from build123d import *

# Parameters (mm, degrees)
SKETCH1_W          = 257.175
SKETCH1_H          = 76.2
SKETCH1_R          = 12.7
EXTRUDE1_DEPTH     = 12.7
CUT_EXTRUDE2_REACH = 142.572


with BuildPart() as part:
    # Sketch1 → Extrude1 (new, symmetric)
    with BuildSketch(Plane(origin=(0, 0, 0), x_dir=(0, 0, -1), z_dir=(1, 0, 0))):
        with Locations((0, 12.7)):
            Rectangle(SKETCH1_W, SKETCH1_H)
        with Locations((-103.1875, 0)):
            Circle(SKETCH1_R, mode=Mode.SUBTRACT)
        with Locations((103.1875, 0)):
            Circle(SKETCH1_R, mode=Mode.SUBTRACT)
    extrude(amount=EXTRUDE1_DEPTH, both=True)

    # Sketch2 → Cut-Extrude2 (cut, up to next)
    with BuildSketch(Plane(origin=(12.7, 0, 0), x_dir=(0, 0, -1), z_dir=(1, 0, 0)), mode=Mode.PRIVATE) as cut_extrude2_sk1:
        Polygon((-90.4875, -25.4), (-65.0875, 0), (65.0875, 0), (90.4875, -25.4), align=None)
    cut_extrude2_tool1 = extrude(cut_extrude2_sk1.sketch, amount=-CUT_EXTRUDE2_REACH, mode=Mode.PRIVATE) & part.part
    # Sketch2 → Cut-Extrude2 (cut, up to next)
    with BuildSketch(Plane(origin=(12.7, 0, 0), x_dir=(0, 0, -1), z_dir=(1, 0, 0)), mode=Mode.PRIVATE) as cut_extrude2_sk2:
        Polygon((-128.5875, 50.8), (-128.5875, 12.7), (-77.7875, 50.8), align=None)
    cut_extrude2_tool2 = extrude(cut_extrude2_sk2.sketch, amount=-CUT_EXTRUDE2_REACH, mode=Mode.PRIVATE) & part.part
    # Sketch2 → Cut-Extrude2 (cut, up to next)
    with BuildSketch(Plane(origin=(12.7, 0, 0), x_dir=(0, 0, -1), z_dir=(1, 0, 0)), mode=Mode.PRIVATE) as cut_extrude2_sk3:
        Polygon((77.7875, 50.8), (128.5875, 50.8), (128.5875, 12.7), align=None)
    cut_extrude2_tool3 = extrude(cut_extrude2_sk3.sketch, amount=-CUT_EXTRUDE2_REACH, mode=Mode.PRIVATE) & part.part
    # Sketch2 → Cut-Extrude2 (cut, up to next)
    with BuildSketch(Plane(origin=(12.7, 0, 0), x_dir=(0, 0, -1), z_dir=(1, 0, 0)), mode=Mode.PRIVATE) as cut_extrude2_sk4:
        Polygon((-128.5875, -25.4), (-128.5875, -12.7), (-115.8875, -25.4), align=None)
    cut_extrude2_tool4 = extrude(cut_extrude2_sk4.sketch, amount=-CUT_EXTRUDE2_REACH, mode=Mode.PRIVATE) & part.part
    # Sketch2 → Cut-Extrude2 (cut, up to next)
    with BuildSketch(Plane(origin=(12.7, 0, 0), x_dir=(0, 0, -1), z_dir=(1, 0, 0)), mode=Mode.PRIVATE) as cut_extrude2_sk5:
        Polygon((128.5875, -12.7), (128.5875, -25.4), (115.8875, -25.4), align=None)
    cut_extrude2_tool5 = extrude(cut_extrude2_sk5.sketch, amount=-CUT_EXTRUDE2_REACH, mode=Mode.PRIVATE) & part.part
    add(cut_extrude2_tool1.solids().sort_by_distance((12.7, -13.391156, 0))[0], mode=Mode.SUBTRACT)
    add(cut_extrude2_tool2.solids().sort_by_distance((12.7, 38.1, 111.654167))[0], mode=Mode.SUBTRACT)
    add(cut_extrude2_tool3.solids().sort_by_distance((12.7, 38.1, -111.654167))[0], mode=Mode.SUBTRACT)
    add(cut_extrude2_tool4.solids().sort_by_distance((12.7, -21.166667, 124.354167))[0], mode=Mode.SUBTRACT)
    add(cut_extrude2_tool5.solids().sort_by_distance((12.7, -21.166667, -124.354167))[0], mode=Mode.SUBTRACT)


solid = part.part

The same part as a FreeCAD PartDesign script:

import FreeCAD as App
import Part
import Sketcher

V = App.Vector
Q = App.Units.Quantity


def add_polygon(sketch, points):
    """Adds a closed chain of lines whose ends are joined by coincident constraints."""
    first, n = sketch.GeometryCount, len(points)
    for a, b in zip(points, points[1:] + points[:1]):
        sketch.addGeometry(Part.LineSegment(App.Vector(*a, 0), App.Vector(*b, 0)), False)
    for i in range(n):
        sketch.addConstraint(Sketcher.Constraint("Coincident", first + i, 2, first + (i + 1) % n, 1))

doc = App.newDocument("Part")
params = doc.addObject("Spreadsheet::Sheet", "Params")
for row, (alias, value) in enumerate([
    ("sketch1_diameter", "1 in"),
    ("sketch1_width", "3 in"),
    ("sketch1_height", "10.125 in"),
    ("pad1_length", "1 in"),
    ("sketch2_height", "7.125 in"),
    ("sketch3_height", "2 in"),
    ("sketch3_width", "1.5 in"),
    ("sketch4_height", "2 in"),
    ("sketch4_width", "1.5 in"),
    ("sketch5_width", "0.5 in"),
    ("sketch6_width", "0.5 in"),
], start=1):
    params.set(f"A{row}", alias)
    params.set(f"B{row}", "=" + value)
    params.setAlias(f"B{row}", alias)

body = doc.addObject("PartDesign::Body", "Body")

sketch1 = body.newObject("Sketcher::SketchObject", "Sketch")
sketch1.AttachmentSupport = (doc.getObject("YZ_Plane"), [""])
sketch1.MapMode = "FlatFace"
add_polygon(sketch1, [(51, 129), (-25, 129), (-25, -129), (51, -129)])
sketch1.addGeometry(Part.Circle(V(0, 103, 0), V(0, 0, 1), 13), False)
sketch1.addGeometry(Part.Circle(V(0, -103, 0), V(0, 0, 1), 13), False)
sketch1.addConstraint([
    Sketcher.Constraint("Horizontal", 0),
    Sketcher.Constraint("Vertical", 1),
    Sketcher.Constraint("Horizontal", 2),
    Sketcher.Constraint("Vertical", 3),
    Sketcher.Constraint("Equal", 4, 5),
    Sketcher.Constraint("Symmetric", 4, 3, 5, 3, -1, 1),
    Sketcher.Constraint("PointOnObject", 4, 3, -2),
    Sketcher.Constraint("Diameter", 4, Q("1 in")),
    Sketcher.Constraint("DistanceX", 0, 2, 0, 1, Q("3 in")),
    Sketcher.Constraint("DistanceX", 0, 2, -1, 1, Q("1 in")),
    Sketcher.Constraint("DistanceY", 4, 3, 0, 2, Q("1 in")),
    Sketcher.Constraint("DistanceY", 1, 2, 5, 3, Q("1 in")),
    Sketcher.Constraint("DistanceY", 1, 2, 1, 1, Q("10.125 in")),
])
sketch1.setExpression("Constraints[11]", "Params.sketch1_diameter")
sketch1.setExpression("Constraints[12]", "Params.sketch1_width")
sketch1.setExpression("Constraints[16]", "Params.sketch1_height")
pad1 = body.newObject("PartDesign::Pad", "Pad")
pad1.Profile = sketch1
pad1.setExpression("Length", "Params.pad1_length")
pad1.Midplane = True

sketch2 = body.newObject("Sketcher::SketchObject", "Sketch001")
sketch2.AttachmentSupport = (doc.getObject("YZ_Plane"), [""])
sketch2.MapMode = "FlatFace"
sketch2.AttachmentOffset = App.Placement(V(0, 0, 0.5 * 25.4), App.Rotation())
add_polygon(sketch2, [(0, 65), (-25, 90), (-25, -90), (0, -65)])
sketch2.addConstraint([
    Sketcher.Constraint("Vertical", 1),
    Sketcher.Constraint("Vertical", 3),
    Sketcher.Constraint("Symmetric", 2, 2, 3, 2, -1, 1),
    Sketcher.Constraint("Perpendicular", 0, 2),
    Sketcher.Constraint("Equal", 0, 2),
    Sketcher.Constraint("DistanceX", 0, 2, -1, 1, Q("1 in")),
    Sketcher.Constraint("DistanceY", 1, 2, 1, 1, Q("7.125 in")),
])
sketch2.setExpression("Constraints[10]", "Params.sketch2_height")
pocket1 = body.newObject("PartDesign::Pocket", "Pocket")
pocket1.Profile = sketch2
pocket1.Type = "UpToFirst"

sketch3 = body.newObject("Sketcher::SketchObject", "Sketch002")
sketch3.AttachmentSupport = (doc.getObject("YZ_Plane"), [""])
sketch3.MapMode = "FlatFace"
sketch3.AttachmentOffset = App.Placement(V(0, 0, 0.5 * 25.4), App.Rotation())
add_polygon(sketch3, [(51, 129), (13, 129), (51, 78)])
sketch3.addConstraint([
    Sketcher.Constraint("Horizontal", 0),
    Sketcher.Constraint("Vertical", 2),
    Sketcher.Constraint("DistanceY", 2, 1, 2, 2, Q("2 in")),
    Sketcher.Constraint("DistanceX", 0, 2, 0, 1, Q("1.5 in")),
    Sketcher.Constraint("DistanceX", -1, 1, 1, 2, Q("2 in")),
    Sketcher.Constraint("DistanceY", -1, 1, 0, 2, Q("5.0625 in")),
])
sketch3.setExpression("Constraints[5]", "Params.sketch3_height")
sketch3.setExpression("Constraints[6]", "Params.sketch3_width")
pocket2 = body.newObject("PartDesign::Pocket", "Pocket001")
pocket2.Profile = sketch3
pocket2.Type = "UpToFirst"

sketch4 = body.newObject("Sketcher::SketchObject", "Sketch003")
sketch4.AttachmentSupport = (doc.getObject("YZ_Plane"), [""])
sketch4.MapMode = "FlatFace"
sketch4.AttachmentOffset = App.Placement(V(0, 0, 0.5 * 25.4), App.Rotation())
add_polygon(sketch4, [(51, -129), (51, -78), (13, -129)])
sketch4.addConstraint([
    Sketcher.Constraint("Vertical", 0),
    Sketcher.Constraint("Horizontal", 2),
    Sketcher.Constraint("DistanceY", 0, 1, 0, 2, Q("2 in")),
    Sketcher.Constraint("DistanceX", 2, 1, 2, 2, Q("1.5 in")),
    Sketcher.Constraint("DistanceX", -1, 1, 0, 2, Q("2 in")),
    Sketcher.Constraint("DistanceY", 0, 2, -1, 1, Q("3.0625 in")),
])
sketch4.setExpression("Constraints[5]", "Params.sketch4_height")
sketch4.setExpression("Constraints[6]", "Params.sketch4_width")
pocket3 = body.newObject("PartDesign::Pocket", "Pocket002")
pocket3.Profile = sketch4
pocket3.Type = "UpToFirst"

sketch5 = body.newObject("Sketcher::SketchObject", "Sketch004")
sketch5.AttachmentSupport = (doc.getObject("YZ_Plane"), [""])
sketch5.MapMode = "FlatFace"
sketch5.AttachmentOffset = App.Placement(V(0, 0, 0.5 * 25.4), App.Rotation())
add_polygon(sketch5, [(-13, 129), (-25, 129), (-25, 116)])
sketch5.addConstraint([
    Sketcher.Constraint("Horizontal", 0),
    Sketcher.Constraint("Vertical", 1),
    Sketcher.Constraint("Equal", 0, 1),
    Sketcher.Constraint("DistanceX", 0, 2, 0, 1, Q("0.5 in")),
    Sketcher.Constraint("DistanceX", 0, 2, -1, 1, Q("1 in")),
    Sketcher.Constraint("DistanceY", -1, 1, 0, 2, Q("5.0625 in")),
])
sketch5.setExpression("Constraints[6]", "Params.sketch5_width")
pocket4 = body.newObject("PartDesign::Pocket", "Pocket003")
pocket4.Profile = sketch5
pocket4.Type = "UpToFirst"

sketch6 = body.newObject("Sketcher::SketchObject", "Sketch005")
sketch6.AttachmentSupport = (doc.getObject("YZ_Plane"), [""])
sketch6.MapMode = "FlatFace"
sketch6.AttachmentOffset = App.Placement(V(0, 0, 0.5 * 25.4), App.Rotation())
add_polygon(sketch6, [(-25, -129), (-13, -129), (-25, -116)])
sketch6.addConstraint([
    Sketcher.Constraint("Horizontal", 0),
    Sketcher.Constraint("Vertical", 2),
    Sketcher.Constraint("Equal", 0, 2),
    Sketcher.Constraint("DistanceX", 0, 1, 0, 2, Q("0.5 in")),
    Sketcher.Constraint("DistanceX", 1, 2, -1, 1, Q("1 in")),
    Sketcher.Constraint("DistanceY", 0, 2, -1, 1, Q("5.0625 in")),
])
sketch6.setExpression("Constraints[6]", "Params.sketch6_width")
pocket5 = body.newObject("PartDesign::Pocket", "Pocket004")
pocket5.Profile = sketch6
pocket5.Type = "UpToFirst"

doc.recompute()
